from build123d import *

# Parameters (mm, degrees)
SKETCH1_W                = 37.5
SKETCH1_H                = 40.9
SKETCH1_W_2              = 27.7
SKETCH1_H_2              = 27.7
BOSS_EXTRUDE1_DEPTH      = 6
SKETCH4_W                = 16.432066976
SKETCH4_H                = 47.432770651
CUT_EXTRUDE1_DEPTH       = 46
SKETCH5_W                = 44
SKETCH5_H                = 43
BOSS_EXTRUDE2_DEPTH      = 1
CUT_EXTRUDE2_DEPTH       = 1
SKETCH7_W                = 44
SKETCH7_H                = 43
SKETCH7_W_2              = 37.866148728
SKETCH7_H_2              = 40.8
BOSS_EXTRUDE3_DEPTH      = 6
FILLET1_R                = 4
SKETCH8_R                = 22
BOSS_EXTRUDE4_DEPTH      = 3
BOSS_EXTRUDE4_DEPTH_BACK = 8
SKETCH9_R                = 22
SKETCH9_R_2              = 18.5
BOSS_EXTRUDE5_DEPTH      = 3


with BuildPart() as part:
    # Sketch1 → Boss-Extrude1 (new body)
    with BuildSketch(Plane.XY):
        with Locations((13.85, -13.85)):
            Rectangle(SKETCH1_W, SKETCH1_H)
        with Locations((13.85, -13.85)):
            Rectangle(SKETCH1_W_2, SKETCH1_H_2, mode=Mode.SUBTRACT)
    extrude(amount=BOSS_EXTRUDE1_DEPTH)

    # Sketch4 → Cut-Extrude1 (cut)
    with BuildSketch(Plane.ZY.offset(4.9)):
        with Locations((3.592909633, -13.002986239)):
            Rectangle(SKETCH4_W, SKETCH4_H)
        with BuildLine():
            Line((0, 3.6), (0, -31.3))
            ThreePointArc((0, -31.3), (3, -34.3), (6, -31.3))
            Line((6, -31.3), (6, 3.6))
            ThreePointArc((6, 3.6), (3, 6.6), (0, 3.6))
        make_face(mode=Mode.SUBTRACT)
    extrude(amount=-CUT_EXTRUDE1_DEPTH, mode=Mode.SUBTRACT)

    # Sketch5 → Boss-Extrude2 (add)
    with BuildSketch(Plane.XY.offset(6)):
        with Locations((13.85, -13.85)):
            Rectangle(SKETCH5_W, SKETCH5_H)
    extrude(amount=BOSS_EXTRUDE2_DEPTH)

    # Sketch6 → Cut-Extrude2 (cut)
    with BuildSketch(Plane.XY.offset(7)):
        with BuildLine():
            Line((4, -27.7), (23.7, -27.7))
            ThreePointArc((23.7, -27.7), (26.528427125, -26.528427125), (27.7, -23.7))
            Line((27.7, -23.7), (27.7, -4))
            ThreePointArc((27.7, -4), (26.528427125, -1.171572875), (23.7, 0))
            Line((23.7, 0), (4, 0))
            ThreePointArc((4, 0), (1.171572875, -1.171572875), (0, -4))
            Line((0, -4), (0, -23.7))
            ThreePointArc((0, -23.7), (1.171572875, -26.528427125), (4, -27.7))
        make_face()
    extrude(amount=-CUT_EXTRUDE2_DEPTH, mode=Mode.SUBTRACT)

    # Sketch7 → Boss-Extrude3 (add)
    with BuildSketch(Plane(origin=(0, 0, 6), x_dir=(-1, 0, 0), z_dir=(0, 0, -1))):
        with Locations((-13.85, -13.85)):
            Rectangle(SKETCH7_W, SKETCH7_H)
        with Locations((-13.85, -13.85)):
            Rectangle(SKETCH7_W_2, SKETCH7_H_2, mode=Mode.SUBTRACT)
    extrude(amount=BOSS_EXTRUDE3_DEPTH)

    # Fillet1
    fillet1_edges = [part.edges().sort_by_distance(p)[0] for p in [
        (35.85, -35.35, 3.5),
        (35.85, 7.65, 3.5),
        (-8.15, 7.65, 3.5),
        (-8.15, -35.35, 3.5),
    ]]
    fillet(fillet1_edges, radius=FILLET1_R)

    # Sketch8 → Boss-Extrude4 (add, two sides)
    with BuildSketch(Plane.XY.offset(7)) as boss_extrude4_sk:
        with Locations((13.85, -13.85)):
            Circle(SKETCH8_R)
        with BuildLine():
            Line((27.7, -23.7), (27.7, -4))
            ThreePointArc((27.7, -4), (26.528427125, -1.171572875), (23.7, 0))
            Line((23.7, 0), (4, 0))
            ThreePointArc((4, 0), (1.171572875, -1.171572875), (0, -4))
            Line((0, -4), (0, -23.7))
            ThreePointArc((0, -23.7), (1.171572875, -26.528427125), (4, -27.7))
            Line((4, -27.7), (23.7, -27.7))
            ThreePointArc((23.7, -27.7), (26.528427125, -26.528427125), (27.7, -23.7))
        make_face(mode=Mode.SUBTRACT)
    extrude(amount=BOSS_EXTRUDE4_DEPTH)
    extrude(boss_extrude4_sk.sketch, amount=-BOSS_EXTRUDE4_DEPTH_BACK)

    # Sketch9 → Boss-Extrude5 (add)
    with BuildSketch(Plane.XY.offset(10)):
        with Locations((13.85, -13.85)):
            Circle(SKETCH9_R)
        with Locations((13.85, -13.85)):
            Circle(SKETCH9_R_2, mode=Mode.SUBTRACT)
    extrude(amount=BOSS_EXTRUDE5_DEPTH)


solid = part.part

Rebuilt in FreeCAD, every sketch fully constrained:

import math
import FreeCAD as App
import Part
import Sketcher


def edges_at(feature, points):
    """Names of the edges that pass closest to the given points."""
    edges = feature.Shape.Edges
    near = lambda p: min(range(len(edges)), key=lambda i: edges[i].distToShape(Part.Vertex(*p))[0])
    return sorted({f"Edge{near(p) + 1}" for p in points})


def add_polygon(sketch, points):
    """Adds a closed chain of lines whose ends are joined by coincident constraints."""
    first, n = sketch.GeometryCount, len(points)
    for a, b in zip(points, points[1:] + points[:1]):
        sketch.addGeometry(Part.LineSegment(App.Vector(*a, 0), App.Vector(*b, 0)), False)
    for i in range(n):
        sketch.addConstraint(Sketcher.Constraint("Coincident", first + i, 2, first + (i + 1) % n, 1))

doc = App.newDocument("Part")
body = doc.addObject("PartDesign::Body", "Body")

# Sketch on XY plane
sketch1 = body.newObject("Sketcher::SketchObject", "Sketch")
sketch1.AttachmentSupport = (doc.getObject("XY_Plane"), [""])
sketch1.MapMode = "FlatFace"
add_polygon(sketch1, [(-4.9, 6.6), (-4.9, -34.3), (32.6, -34.3), (32.6, 6.6)])  # lines 0-3
add_polygon(sketch1, [(27.7, -27.7), (0, -27.7), (0, 0), (27.7, 0)])  # lines 4-7
sketch1.addConstraint(Sketcher.Constraint("Vertical", 0))
sketch1.addConstraint(Sketcher.Constraint("Horizontal", 1))
sketch1.addConstraint(Sketcher.Constraint("Vertical", 2))
sketch1.addConstraint(Sketcher.Constraint("Horizontal", 3))
sketch1.addConstraint(Sketcher.Constraint("Horizontal", 4))
sketch1.addConstraint(Sketcher.Constraint("Vertical", 5))
sketch1.addConstraint(Sketcher.Constraint("Horizontal", 6))
sketch1.addConstraint(Sketcher.Constraint("Vertical", 7))
sketch1.addConstraint(Sketcher.Constraint("Coincident", 5, 2, -1, 1))
sketch1.addConstraint(Sketcher.Constraint("Equal", 6, 5))
sketch1.addConstraint(Sketcher.Constraint("DistanceX", 1, 1, 1, 2, 37.5))
sketch1.addConstraint(Sketcher.Constraint("DistanceX", 4, 2, 4, 1, 27.7))
sketch1.addConstraint(Sketcher.Constraint("DistanceY", 0, 2, 0, 1, 40.9))
sketch1.addConstraint(Sketcher.Constraint("DistanceX", 0, 2, -1, 1, 4.9))
sketch1.addConstraint(Sketcher.Constraint("DistanceY", 0, 2, -1, 1, 34.3))
pad1 = body.newObject("PartDesign::Pad", "Pad")
pad1.Profile = sketch1
pad1.Length = 6

# Sketch on YZ plane
sketch2 = body.newObject("Sketcher::SketchObject", "Sketch001")
sketch2.AttachmentSupport = (doc.getObject("YZ_Plane"), [""])
sketch2.MapMode = "FlatFace"
sketch2.AttachmentOffset = App.Placement(App.Vector(0, 0, -4.9), App.Rotation())
add_polygon(sketch2, [(10.713399, -4.623124), (-36.719372, -4.623124), (-36.719372, 11.808943), (10.713399, 11.808943)])  # lines 0-3
sketch2.addGeometry(Part.LineSegment(App.Vector(-31.3, 0, 0), App.Vector(3.6, 0, 0)), False)  # 4
sketch2.addGeometry(Part.ArcOfCircle(Part.Circle(App.Vector(3.6, 3, 0), App.Vector(0, 0, 1), 3), math.radians(-90), math.radians(90)), False)  # 5
sketch2.addGeometry(Part.LineSegment(App.Vector(3.6, 6, 0), App.Vector(-31.3, 6, 0)), False)  # 6
sketch2.addGeometry(Part.ArcOfCircle(Part.Circle(App.Vector(-31.3, 3, 0), App.Vector(0, 0, 1), 3), math.radians(90), math.radians(270)), False)  # 7
sketch2.addConstraint(Sketcher.Constraint("Tangent", 4, 2, 5, 1))
sketch2.addConstraint(Sketcher.Constraint("Tangent", 5, 2, 6, 1))
sketch2.addConstraint(Sketcher.Constraint("Tangent", 6, 2, 7, 1))
sketch2.addConstraint(Sketcher.Constraint("Tangent", 7, 2, 4, 1))
sketch2.addConstraint(Sketcher.Constraint("Horizontal", 0))
sketch2.addConstraint(Sketcher.Constraint("Vertical", 1))
sketch2.addConstraint(Sketcher.Constraint("Horizontal", 2))
sketch2.addConstraint(Sketcher.Constraint("Vertical", 3))
sketch2.addConstraint(Sketcher.Constraint("Horizontal", 4))
sketch2.addConstraint(Sketcher.Constraint("Horizontal", 6))
sketch2.addConstraint(Sketcher.Constraint("PointOnObject", 4, 2, -1))
sketch2.addConstraint(Sketcher.Constraint("Radius", 5, 3.0))
sketch2.addConstraint(Sketcher.Constraint("DistanceX", 4, 1, 4, 2, 34.9))
sketch2.addConstraint(Sketcher.Constraint("DistanceX", -1, 1, 5, 3, 3.6))
sketch2.addConstraint(Sketcher.Constraint("DistanceX", 0, 2, 0, 1, 47.432771))
sketch2.addConstraint(Sketcher.Constraint("DistanceX", -1, 1, 2, 2, 10.713399))
sketch2.addConstraint(Sketcher.Constraint("DistanceY", 1, 1, 1, 2, 16.432067))
sketch2.addConstraint(Sketcher.Constraint("DistanceY", 0, 2, -1, 1, 4.623124))
pocket1 = body.newObject("PartDesign::Pocket", "Pocket")
pocket1.Profile = sketch2
pocket1.Length = 46
pocket1.Reversed = True

# Sketch on XY plane
sketch3 = body.newObject("Sketcher::SketchObject", "Sketch002")
sketch3.AttachmentSupport = (doc.getObject("XY_Plane"), [""])
sketch3.MapMode = "FlatFace"
sketch3.AttachmentOffset = App.Placement(App.Vector(0, 0, 6), App.Rotation())
add_polygon(sketch3, [(-8.15, 7.65), (-8.15, -35.35), (35.85, -35.35), (35.85, 7.65)])  # lines 0-3
sketch3.addConstraint(Sketcher.Constraint("Vertical", 0))
sketch3.addConstraint(Sketcher.Constraint("Horizontal", 1))
sketch3.addConstraint(Sketcher.Constraint("Vertical", 2))
sketch3.addConstraint(Sketcher.Constraint("Horizontal", 3))
sketch3.addConstraint(Sketcher.Constraint("DistanceX", 1, 1, 1, 2, 44.0))
sketch3.addConstraint(Sketcher.Constraint("DistanceY", 0, 2, 0, 1, 43.0))
sketch3.addConstraint(Sketcher.Constraint("DistanceX", 0, 2, -1, 1, 8.15))
sketch3.addConstraint(Sketcher.Constraint("DistanceY", 0, 2, -1, 1, 35.35))
pad2 = body.newObject("PartDesign::Pad", "Pad001")
pad2.Profile = sketch3
pad2.Length = 1

# Sketch on XY plane
sketch4 = body.newObject("Sketcher::SketchObject", "Sketch003")
sketch4.AttachmentSupport = (doc.getObject("XY_Plane"), [""])
sketch4.MapMode = "FlatFace"
sketch4.AttachmentOffset = App.Placement(App.Vector(0, 0, 7), App.Rotation())
sketch4.addGeometry(Part.LineSegment(App.Vector(4, -27.7, 0), App.Vector(23.7, -27.7, 0)), False)
sketch4.addGeometry(Part.ArcOfCircle(Part.Circle(App.Vector(23.7, -23.7, 0), App.Vector(0, 0, 1), 4), math.radians(-90), math.radians(0)), False)
sketch4.addGeometry(Part.LineSegment(App.Vector(27.7, -23.7, 0), App.Vector(27.7, -4, 0)), False)
sketch4.addGeometry(Part.ArcOfCircle(Part.Circle(App.Vector(23.7, -4, 0), App.Vector(0, 0, 1), 4), math.radians(0), math.radians(90)), False)
sketch4.addGeometry(Part.LineSegment(App.Vector(23.7, 0, 0), App.Vector(4, 0, 0)), False)
sketch4.addGeometry(Part.ArcOfCircle(Part.Circle(App.Vector(4, -4, 0), App.Vector(0, 0, 1), 4), math.radians(90), math.radians(180)), False)
sketch4.addGeometry(Part.LineSegment(App.Vector(0, -4, 0), App.Vector(0, -23.7, 0)), False)
sketch4.addGeometry(Part.ArcOfCircle(Part.Circle(App.Vector(4, -23.7, 0), App.Vector(0, 0, 1), 4), math.radians(180), math.radians(270)), False)
sketch4.addConstraint(Sketcher.Constraint("Tangent", 0, 2, 1, 1))
sketch4.addConstraint(Sketcher.Constraint("Tangent", 1, 2, 2, 1))
sketch4.addConstraint(Sketcher.Constraint("Tangent", 2, 2, 3, 1))
sketch4.addConstraint(Sketcher.Constraint("Tangent", 3, 2, 4, 1))
sketch4.addConstraint(Sketcher.Constraint("Tangent", 4, 2, 5, 1))
sketch4.addConstraint(Sketcher.Constraint("Tangent", 5, 2, 6, 1))
sketch4.addConstraint(Sketcher.Constraint("Tangent", 6, 2, 7, 1))
sketch4.addConstraint(Sketcher.Constraint("Tangent", 7, 2, 0, 1))
sketch4.addConstraint(Sketcher.Constraint("Horizontal", 0))
sketch4.addConstraint(Sketcher.Constraint("Vertical", 2))
sketch4.addConstraint(Sketcher.Constraint("Horizontal", 4))
sketch4.addConstraint(Sketcher.Constraint("Vertical", 6))
sketch4.addConstraint(Sketcher.Constraint("Equal", 1, 3))
sketch4.addConstraint(Sketcher.Constraint("Equal", 3, 5))
sketch4.addConstraint(Sketcher.Constraint("Equal", 5, 7))
sketch4.addConstraint(Sketcher.Constraint("PointOnObject", 3, 2, -1))
sketch4.addConstraint(Sketcher.Constraint("PointOnObject", 5, 2, -2))
sketch4.addConstraint(Sketcher.Constraint("Equal", 4, 2))
sketch4.addConstraint(Sketcher.Constraint("Radius", 1, 4.0))
sketch4.addConstraint(Sketcher.Constraint("DistanceX", 0, 1, 0, 2, 19.7))
pocket2 = body.newObject("PartDesign::Pocket", "Pocket001")
pocket2.Profile = sketch4
pocket2.Length = 1

# Sketch on XY plane
sketch5 = body.newObject("Sketcher::SketchObject", "Sketch004")
sketch5.AttachmentSupport = (doc.getObject("XY_Plane"), [""])
sketch5.MapMode = "FlatFace"
sketch5.AttachmentOffset = App.Placement(App.Vector(0, 0, 6), App.Rotation())
add_polygon(sketch5, [(35.85, 7.65), (35.85, -35.35), (-8.15, -35.35), (-8.15, 7.65)])  # lines 0-3
add_polygon(sketch5, [(-5.083074, -34.25), (32.783074, -34.25), (32.783074, 6.55), (-5.083074, 6.55)])  # lines 4-7
sketch5.addConstraint(Sketcher.Constraint("Vertical", 0))
sketch5.addConstraint(Sketcher.Constraint("Horizontal", 1))
sketch5.addConstraint(Sketcher.Constraint("Vertical", 2))
sketch5.addConstraint(Sketcher.Constraint("Horizontal", 3))
sketch5.addConstraint(Sketcher.Constraint("Horizontal", 4))
sketch5.addConstraint(Sketcher.Constraint("Vertical", 5))
sketch5.addConstraint(Sketcher.Constraint("Horizontal", 6))
sketch5.addConstraint(Sketcher.Constraint("Vertical", 7))
sketch5.addConstraint(Sketcher.Constraint("DistanceX", 1, 2, 1, 1, 44.0))
sketch5.addConstraint(Sketcher.Constraint("DistanceY", 0, 2, 0, 1, 43.0))
sketch5.addConstraint(Sketcher.Constraint("DistanceY", 5, 1, 5, 2, 40.8))
sketch5.addConstraint(Sketcher.Constraint("DistanceY", 0, 2, 4, 2, 1.1))
sketch5.addConstraint(Sketcher.Constraint("DistanceX", -1, 1, 0, 2, 35.85))
sketch5.addConstraint(Sketcher.Constraint("DistanceY", 0, 2, -1, 1, 35.35))
sketch5.addConstraint(Sketcher.Constraint("DistanceX", 4, 1, 4, 2, 37.866149))
sketch5.addConstraint(Sketcher.Constraint("DistanceX", -1, 1, 4, 2, 32.783074))
pad3 = body.newObject("PartDesign::Pad", "Pad002")
pad3.Profile = sketch5
pad3.Length = 6
pad3.Reversed = True
doc.recompute()

fillet = body.newObject("PartDesign::Fillet", "Fillet")
fillet.Base = (pad3, edges_at(pad3, [
    (35.85, -35.35, 3.5),
    (35.85, 7.65, 3.5),
    (-8.15, 7.65, 3.5),
    (-8.15, -35.35, 3.5),
]))
fillet.Radius = 4

# Sketch on XY plane
sketch6 = body.newObject("Sketcher::SketchObject", "Sketch005")
sketch6.AttachmentSupport = (doc.getObject("XY_Plane"), [""])
sketch6.MapMode = "FlatFace"
sketch6.AttachmentOffset = App.Placement(App.Vector(0, 0, 7), App.Rotation())
sketch6.addGeometry(Part.Circle(App.Vector(13.85, -13.85, 0), App.Vector(0, 0, 1), 22), False)
sketch6.addGeometry(Part.LineSegment(App.Vector(27.7, -4, 0), App.Vector(27.7, -23.7, 0)), False)
sketch6.addGeometry(Part.ArcOfCircle(Part.Circle(App.Vector(23.7, -23.7, 0), App.Vector(0, 0, 1), 4), math.radians(-90), math.radians(0)), False)
sketch6.addGeometry(Part.LineSegment(App.Vector(23.7, -27.7, 0), App.Vector(4, -27.7, 0)), False)
sketch6.addGeometry(Part.ArcOfCircle(Part.Circle(App.Vector(4, -23.7, 0), App.Vector(0, 0, 1), 4), math.radians(180), math.radians(270)), False)
sketch6.addGeometry(Part.LineSegment(App.Vector(0, -23.7, 0), App.Vector(0, -4, 0)), False)
sketch6.addGeometry(Part.ArcOfCircle(Part.Circle(App.Vector(4, -4, 0), App.Vector(0, 0, 1), 4), math.radians(90), math.radians(180)), False)
sketch6.addGeometry(Part.LineSegment(App.Vector(4, 0, 0), App.Vector(23.7, 0, 0)), False)
sketch6.addGeometry(Part.ArcOfCircle(Part.Circle(App.Vector(23.7, -4, 0), App.Vector(0, 0, 1), 4), math.radians(0), math.radians(90)), False)
sketch6.addConstraint(Sketcher.Constraint("Tangent", 1, 2, 2, 2))
sketch6.addConstraint(Sketcher.Constraint("Tangent", 2, 1, 3, 1))
sketch6.addConstraint(Sketcher.Constraint("Tangent", 3, 2, 4, 2))
sketch6.addConstraint(Sketcher.Constraint("Tangent", 4, 1, 5, 1))
sketch6.addConstraint(Sketcher.Constraint("Tangent", 5, 2, 6, 2))
sketch6.addConstraint(Sketcher.Constraint("Tangent", 6, 1, 7, 1))
sketch6.addConstraint(Sketcher.Constraint("Tangent", 7, 2, 8, 2))
sketch6.addConstraint(Sketcher.Constraint("Tangent", 8, 1, 1, 1))
sketch6.addConstraint(Sketcher.Constraint("Vertical", 1))
sketch6.addConstraint(Sketcher.Constraint("Horizontal", 3))
sketch6.addConstraint(Sketcher.Constraint("Vertical", 5))
sketch6.addConstraint(Sketcher.Constraint("Horizontal", 7))
sketch6.addConstraint(Sketcher.Constraint("Equal", 2, 4))
sketch6.addConstraint(Sketcher.Constraint("Equal", 4, 6))
sketch6.addConstraint(Sketcher.Constraint("Equal", 6, 8))
sketch6.addConstraint(Sketcher.Constraint("PointOnObject", 4, 1, -2))
sketch6.addConstraint(Sketcher.Constraint("PointOnObject", 6, 1, -1))
sketch6.addConstraint(Sketcher.Constraint("Equal", 7, 1))
sketch6.addConstraint(Sketcher.Constraint("Diameter", 0, 44.0))
sketch6.addConstraint(Sketcher.Constraint("Radius", 2, 4.0))
sketch6.addConstraint(Sketcher.Constraint("DistanceX", 3, 2, 3, 1, 19.7))
sketch6.addConstraint(Sketcher.Constraint("DistanceX", -1, 1, 0, 3, 13.85))
sketch6.addConstraint(Sketcher.Constraint("DistanceY", 0, 3, -1, 1, 13.85))
pad4 = body.newObject("PartDesign::Pad", "Pad003")
pad4.Profile = sketch6
pad4.Type = "TwoLengths"
pad4.Length = 3
pad4.Length2 = 8

# Sketch on XY plane
sketch7 = body.newObject("Sketcher::SketchObject", "Sketch006")
sketch7.AttachmentSupport = (doc.getObject("XY_Plane"), [""])
sketch7.MapMode = "FlatFace"
sketch7.AttachmentOffset = App.Placement(App.Vector(0, 0, 10), App.Rotation())
sketch7.addGeometry(Part.Circle(App.Vector(13.85, -13.85, 0), App.Vector(0, 0, 1), 22), False)
sketch7.addGeometry(Part.Circle(App.Vector(13.85, -13.85, 0), App.Vector(0, 0, 1), 18.5), False)
sketch7.addConstraint(Sketcher.Constraint("Coincident", 1, 3, 0, 3))
sketch7.addConstraint(Sketcher.Constraint("Diameter", 0, 44.0))
sketch7.addConstraint(Sketcher.Constraint("Diameter", 1, 37.0))
sketch7.addConstraint(Sketcher.Constraint("DistanceX", -1, 1, 0, 3, 13.85))
sketch7.addConstraint(Sketcher.Constraint("DistanceY", 0, 3, -1, 1, 13.85))
pad5 = body.newObject("PartDesign::Pad", "Pad004")
pad5.Profile = sketch7
pad5.Length = 3

doc.recompute()
